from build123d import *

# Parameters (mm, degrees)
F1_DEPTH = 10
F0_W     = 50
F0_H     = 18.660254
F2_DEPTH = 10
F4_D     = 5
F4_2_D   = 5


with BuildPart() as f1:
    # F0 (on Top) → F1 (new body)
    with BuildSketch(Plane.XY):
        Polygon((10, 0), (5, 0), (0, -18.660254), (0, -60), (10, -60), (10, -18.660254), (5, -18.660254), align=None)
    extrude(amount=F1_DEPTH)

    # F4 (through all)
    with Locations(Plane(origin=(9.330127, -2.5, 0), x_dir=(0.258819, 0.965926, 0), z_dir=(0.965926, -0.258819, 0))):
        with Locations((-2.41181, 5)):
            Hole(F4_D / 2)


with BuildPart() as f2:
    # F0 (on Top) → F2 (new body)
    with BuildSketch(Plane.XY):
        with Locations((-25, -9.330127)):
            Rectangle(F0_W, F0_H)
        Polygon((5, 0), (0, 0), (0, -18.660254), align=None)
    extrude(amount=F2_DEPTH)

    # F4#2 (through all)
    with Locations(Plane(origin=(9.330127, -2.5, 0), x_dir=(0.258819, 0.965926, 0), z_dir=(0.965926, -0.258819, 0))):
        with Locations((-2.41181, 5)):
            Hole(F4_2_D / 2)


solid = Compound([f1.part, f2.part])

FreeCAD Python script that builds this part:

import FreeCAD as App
import Part
import Sketcher
from FreeCAD import Vector
Q = App.Units.Quantity


def add_polygon(sketch, points):
    """Adds a closed chain of lines whose ends are joined by coincident constraints."""
    first, n = sketch.GeometryCount, len(points)
    for a, b in zip(points, points[1:] + points[:1]):
        sketch.addGeometry(Part.LineSegment(App.Vector(*a, 0), App.Vector(*b, 0)), False)
    for i in range(n):
        sketch.addConstraint(Sketcher.Constraint("Coincident", first + i, 2, first + (i + 1) % n, 1))

doc = App.newDocument("Part")
params = doc.addObject("Spreadsheet::Sheet", "Params")
for row, (alias, value) in enumerate([
    ("sketch1_width", "5 mm"),
    ("pad1_length", "10 mm"),
    ("sketch2_diameter", "5 mm"),
    ("hole_diameter", "5 mm"),
    ("sketch3_width", "50 mm"),
    ("sketch3_width2", "55 mm"),
    ("pad2_length", "10 mm"),
    ("sketch4_diameter", "5 mm"),
    ("hole2_diameter", "5 mm"),
], start=1):
    params.set(f"A{row}", alias)
    params.set(f"B{row}", "=" + value)
    params.setAlias(f"B{row}", alias)

body = doc.addObject("PartDesign::Body", "Body")

# Sketch on XY plane
sketch1 = body.newObject("Sketcher::SketchObject", "Sketch")
sketch1.AttachmentSupport = (doc.getObject("XY_Plane"), [""])
sketch1.MapMode = "FlatFace"
add_polygon(sketch1, [(10, 0), (5, 0), (0, -19), (0, -60), (10, -60), (10, -19), (5, -19)])  # lines 0-6
sketch1.addConstraint([
    Sketcher.Constraint("Horizontal", 0),
    Sketcher.Constraint("Vertical", 2),
    Sketcher.Constraint("Horizontal", 3),
    Sketcher.Constraint("Vertical", 4),
    Sketcher.Constraint("Horizontal", 5),
    Sketcher.Constraint("PointOnObject", 0, 2, -1),
    Sketcher.Constraint("PointOnObject", 1, 2, -2),
    Sketcher.Constraint("Parallel", 1, 6),
    Sketcher.Constraint("Horizontal", 1, 2, 4, 2),
    Sketcher.Constraint("Vertical", 0, 2, 5, 2),
    Sketcher.Constraint("Vertical", 4, 2, 6, 2),
    Sketcher.Constraint("DistanceX", 0, 2, 0, 1, Q("5 mm")),
    Sketcher.Constraint("Angle", 1, Q("-105 deg")),
    Sketcher.Constraint("DistanceY", 2, 2, -1, 1, Q("60 mm")),
])
sketch1.setExpression("Constraints[18]", "Params.sketch1_width")
pad1 = body.newObject("PartDesign::Pad", "Pad")
pad1.Profile = sketch1
pad1.setExpression("Length", "Params.pad1_length")

# Sketch on an angled plane
sketch2 = body.newObject("Sketcher::SketchObject", "Sketch001")
sketch2.Placement = App.Placement(Vector(9.330127, -2.499999, 0), App.Rotation(Vector(0.25881896, 0.965925849, 0), Vector(0, 0, 1), Vector(0.965925849, -0.25881896, 0), "ZXY"))
sketch2.addGeometry(Part.Circle(Vector(-2.4, 5, 0), Vector(0, 0, 1), 2.5), False)
sketch2.addConstraint([
    Sketcher.Constraint("Diameter", 0, Q("5 mm")),
    Sketcher.Constraint("DistanceY", -1, 1, 0, 3, Q("5 mm")),
    Sketcher.Constraint("DistanceX", 0, 3, -1, 1, Q("2.411811 mm")),
])
sketch2.setExpression("Constraints[0]", "Params.sketch2_diameter")
doc.recompute()
hole = body.newObject("PartDesign::Hole", "Hole")
hole.Profile = sketch2
hole.ThreadType = "None"
hole.setExpression("Diameter", "Params.hole_diameter")
hole.DepthType = "ThroughAll"
body2 = doc.addObject("PartDesign::Body", "Body001")

# Sketch on XY plane
sketch3 = body2.newObject("Sketcher::SketchObject", "Sketch002")
sketch3.AttachmentSupport = (doc.getObject("XY_Plane001"), [""])
sketch3.MapMode = "FlatFace"
add_polygon(sketch3, [(-50, 0), (-50, -19), (0, -19), (5, 0)])  # lines 0-3
sketch3.addConstraint([
    Sketcher.Constraint("Vertical", 0),
    Sketcher.Constraint("Horizontal", 1),
    Sketcher.Constraint("Horizontal", 3),
    Sketcher.Constraint("PointOnObject", 1, 2, -2),
    Sketcher.Constraint("PointOnObject", 2, 2, -1),
    Sketcher.Constraint("DistanceX", 1, 1, 1, 2, Q("50 mm")),
    Sketcher.Constraint("DistanceX", 3, 2, 3, 1, Q("55 mm")),
    Sketcher.Constraint("Angle", 2, Q("75 deg")),
])
sketch3.setExpression("Constraints[9]", "Params.sketch3_width")
sketch3.setExpression("Constraints[10]", "Params.sketch3_width2")
pad2 = body2.newObject("PartDesign::Pad", "Pad001")
pad2.Profile = sketch3
pad2.setExpression("Length", "Params.pad2_length")

# Sketch on an angled plane
sketch4 = body2.newObject("Sketcher::SketchObject", "Sketch003")
sketch4.Placement = App.Placement(Vector(9.330127, -2.499999, 0), App.Rotation(Vector(0.25881896, 0.965925849, 0), Vector(0, 0, 1), Vector(0.965925849, -0.25881896, 0), "ZXY"))
sketch4.addGeometry(Part.Circle(Vector(-2.4, 5, 0), Vector(0, 0, 1), 2.5), False)
sketch4.addConstraint([
    Sketcher.Constraint("Diameter", 0, Q("5 mm")),
    Sketcher.Constraint("DistanceY", -1, 1, 0, 3, Q("5 mm")),
    Sketcher.Constraint("DistanceX", 0, 3, -1, 1, Q("2.411811 mm")),
])
sketch4.setExpression("Constraints[0]", "Params.sketch4_diameter")
doc.recompute()
hole2 = body2.newObject("PartDesign::Hole", "Hole001")
hole2.Profile = sketch4
hole2.ThreadType = "None"
hole2.setExpression("Diameter", "Params.hole2_diameter")
hole2.DepthType = "ThroughAll"

doc.recompute()
